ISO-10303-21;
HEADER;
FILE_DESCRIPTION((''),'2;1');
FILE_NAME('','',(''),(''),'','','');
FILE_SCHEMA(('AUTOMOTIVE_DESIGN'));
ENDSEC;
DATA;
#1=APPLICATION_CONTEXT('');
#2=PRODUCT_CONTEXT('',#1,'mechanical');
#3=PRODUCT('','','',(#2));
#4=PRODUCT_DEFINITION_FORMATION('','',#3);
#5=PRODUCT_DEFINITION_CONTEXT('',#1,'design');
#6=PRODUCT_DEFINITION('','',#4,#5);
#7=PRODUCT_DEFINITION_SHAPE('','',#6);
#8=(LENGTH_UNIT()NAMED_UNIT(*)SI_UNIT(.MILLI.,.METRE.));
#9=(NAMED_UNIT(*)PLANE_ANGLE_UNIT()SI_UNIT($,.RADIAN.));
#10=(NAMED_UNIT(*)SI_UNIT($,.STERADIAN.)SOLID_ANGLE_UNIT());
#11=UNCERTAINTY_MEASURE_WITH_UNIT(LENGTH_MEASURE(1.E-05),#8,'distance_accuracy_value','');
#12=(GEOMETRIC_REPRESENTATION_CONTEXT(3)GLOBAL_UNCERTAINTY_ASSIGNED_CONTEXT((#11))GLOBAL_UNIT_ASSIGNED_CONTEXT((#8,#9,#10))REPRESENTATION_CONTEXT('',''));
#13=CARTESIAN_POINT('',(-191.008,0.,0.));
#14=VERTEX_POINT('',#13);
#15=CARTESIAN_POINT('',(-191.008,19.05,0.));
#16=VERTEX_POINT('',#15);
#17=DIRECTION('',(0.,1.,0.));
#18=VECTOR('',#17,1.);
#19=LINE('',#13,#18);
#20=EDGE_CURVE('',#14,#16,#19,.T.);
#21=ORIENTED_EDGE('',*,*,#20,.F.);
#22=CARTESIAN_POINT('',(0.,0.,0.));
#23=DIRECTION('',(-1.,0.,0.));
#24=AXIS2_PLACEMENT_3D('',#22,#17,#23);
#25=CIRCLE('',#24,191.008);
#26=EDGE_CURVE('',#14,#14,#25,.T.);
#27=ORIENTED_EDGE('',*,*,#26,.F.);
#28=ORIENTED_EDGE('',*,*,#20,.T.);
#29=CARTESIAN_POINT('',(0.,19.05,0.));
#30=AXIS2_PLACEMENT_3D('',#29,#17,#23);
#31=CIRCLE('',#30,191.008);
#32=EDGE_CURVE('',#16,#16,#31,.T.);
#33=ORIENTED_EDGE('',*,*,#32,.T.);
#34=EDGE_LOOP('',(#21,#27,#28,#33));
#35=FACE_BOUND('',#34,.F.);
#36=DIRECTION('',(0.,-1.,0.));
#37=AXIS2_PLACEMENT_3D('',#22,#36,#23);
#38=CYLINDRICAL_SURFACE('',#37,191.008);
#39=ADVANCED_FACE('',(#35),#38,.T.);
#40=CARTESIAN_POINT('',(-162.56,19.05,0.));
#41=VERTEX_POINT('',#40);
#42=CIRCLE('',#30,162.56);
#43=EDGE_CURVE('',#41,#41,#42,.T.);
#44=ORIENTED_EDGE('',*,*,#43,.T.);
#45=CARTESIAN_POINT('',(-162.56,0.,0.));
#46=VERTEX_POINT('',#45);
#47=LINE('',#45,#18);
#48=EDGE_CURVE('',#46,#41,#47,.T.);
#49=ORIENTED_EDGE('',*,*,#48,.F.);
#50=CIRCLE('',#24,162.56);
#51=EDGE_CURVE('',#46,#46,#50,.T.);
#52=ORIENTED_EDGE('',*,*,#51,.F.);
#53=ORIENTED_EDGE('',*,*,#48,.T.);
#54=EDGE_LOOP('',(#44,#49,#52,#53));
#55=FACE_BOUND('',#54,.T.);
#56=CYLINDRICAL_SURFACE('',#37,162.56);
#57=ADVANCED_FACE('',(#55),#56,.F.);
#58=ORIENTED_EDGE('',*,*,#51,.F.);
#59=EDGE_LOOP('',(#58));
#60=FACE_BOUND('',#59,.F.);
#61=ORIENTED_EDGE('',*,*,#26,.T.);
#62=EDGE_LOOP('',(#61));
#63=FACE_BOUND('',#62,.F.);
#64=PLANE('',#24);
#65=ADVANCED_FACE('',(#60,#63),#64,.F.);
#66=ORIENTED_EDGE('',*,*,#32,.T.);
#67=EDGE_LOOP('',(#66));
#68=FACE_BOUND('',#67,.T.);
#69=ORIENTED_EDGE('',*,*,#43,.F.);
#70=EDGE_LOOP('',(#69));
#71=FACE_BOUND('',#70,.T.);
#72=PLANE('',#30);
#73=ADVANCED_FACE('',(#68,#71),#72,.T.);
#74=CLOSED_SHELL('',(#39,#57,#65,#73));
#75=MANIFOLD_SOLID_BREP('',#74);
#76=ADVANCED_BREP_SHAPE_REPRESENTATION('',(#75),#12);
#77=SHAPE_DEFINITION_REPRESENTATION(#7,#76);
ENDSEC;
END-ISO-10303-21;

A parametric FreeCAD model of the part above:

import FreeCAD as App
import Part
import Sketcher
from FreeCAD import Vector
Q = App.Units.Quantity

doc = App.newDocument("Part")
body = doc.addObject("PartDesign::Body", "Body")

# Sketch on XZ plane
sketch1 = body.newObject("Sketcher::SketchObject", "Sketch")
sketch1.AttachmentSupport = (doc.getObject("XZ_Plane"), [""])
sketch1.MapMode = "FlatFace"
sketch1.addGeometry([
    Part.Circle(Vector(0, 0, 0), Vector(0, 0, 1), 191),
    Part.Circle(Vector(0, 0, 0), Vector(0, 0, 1), 163),
], False)
sketch1.addConstraint([
    Sketcher.Constraint("Coincident", 0, 3, -1, 1),
    Sketcher.Constraint("Coincident", 1, 3, -1, 1),
    Sketcher.Constraint("Diameter", 1, Q("12.8 in")),
    Sketcher.Constraint("Diameter", 0, Q("15.04 in")),
])
pad1 = body.newObject("PartDesign::Pad", "Pad")
pad1.Profile = sketch1
pad1.Length = Q("0.75 in")
pad1.Reversed = True

doc.recompute()
